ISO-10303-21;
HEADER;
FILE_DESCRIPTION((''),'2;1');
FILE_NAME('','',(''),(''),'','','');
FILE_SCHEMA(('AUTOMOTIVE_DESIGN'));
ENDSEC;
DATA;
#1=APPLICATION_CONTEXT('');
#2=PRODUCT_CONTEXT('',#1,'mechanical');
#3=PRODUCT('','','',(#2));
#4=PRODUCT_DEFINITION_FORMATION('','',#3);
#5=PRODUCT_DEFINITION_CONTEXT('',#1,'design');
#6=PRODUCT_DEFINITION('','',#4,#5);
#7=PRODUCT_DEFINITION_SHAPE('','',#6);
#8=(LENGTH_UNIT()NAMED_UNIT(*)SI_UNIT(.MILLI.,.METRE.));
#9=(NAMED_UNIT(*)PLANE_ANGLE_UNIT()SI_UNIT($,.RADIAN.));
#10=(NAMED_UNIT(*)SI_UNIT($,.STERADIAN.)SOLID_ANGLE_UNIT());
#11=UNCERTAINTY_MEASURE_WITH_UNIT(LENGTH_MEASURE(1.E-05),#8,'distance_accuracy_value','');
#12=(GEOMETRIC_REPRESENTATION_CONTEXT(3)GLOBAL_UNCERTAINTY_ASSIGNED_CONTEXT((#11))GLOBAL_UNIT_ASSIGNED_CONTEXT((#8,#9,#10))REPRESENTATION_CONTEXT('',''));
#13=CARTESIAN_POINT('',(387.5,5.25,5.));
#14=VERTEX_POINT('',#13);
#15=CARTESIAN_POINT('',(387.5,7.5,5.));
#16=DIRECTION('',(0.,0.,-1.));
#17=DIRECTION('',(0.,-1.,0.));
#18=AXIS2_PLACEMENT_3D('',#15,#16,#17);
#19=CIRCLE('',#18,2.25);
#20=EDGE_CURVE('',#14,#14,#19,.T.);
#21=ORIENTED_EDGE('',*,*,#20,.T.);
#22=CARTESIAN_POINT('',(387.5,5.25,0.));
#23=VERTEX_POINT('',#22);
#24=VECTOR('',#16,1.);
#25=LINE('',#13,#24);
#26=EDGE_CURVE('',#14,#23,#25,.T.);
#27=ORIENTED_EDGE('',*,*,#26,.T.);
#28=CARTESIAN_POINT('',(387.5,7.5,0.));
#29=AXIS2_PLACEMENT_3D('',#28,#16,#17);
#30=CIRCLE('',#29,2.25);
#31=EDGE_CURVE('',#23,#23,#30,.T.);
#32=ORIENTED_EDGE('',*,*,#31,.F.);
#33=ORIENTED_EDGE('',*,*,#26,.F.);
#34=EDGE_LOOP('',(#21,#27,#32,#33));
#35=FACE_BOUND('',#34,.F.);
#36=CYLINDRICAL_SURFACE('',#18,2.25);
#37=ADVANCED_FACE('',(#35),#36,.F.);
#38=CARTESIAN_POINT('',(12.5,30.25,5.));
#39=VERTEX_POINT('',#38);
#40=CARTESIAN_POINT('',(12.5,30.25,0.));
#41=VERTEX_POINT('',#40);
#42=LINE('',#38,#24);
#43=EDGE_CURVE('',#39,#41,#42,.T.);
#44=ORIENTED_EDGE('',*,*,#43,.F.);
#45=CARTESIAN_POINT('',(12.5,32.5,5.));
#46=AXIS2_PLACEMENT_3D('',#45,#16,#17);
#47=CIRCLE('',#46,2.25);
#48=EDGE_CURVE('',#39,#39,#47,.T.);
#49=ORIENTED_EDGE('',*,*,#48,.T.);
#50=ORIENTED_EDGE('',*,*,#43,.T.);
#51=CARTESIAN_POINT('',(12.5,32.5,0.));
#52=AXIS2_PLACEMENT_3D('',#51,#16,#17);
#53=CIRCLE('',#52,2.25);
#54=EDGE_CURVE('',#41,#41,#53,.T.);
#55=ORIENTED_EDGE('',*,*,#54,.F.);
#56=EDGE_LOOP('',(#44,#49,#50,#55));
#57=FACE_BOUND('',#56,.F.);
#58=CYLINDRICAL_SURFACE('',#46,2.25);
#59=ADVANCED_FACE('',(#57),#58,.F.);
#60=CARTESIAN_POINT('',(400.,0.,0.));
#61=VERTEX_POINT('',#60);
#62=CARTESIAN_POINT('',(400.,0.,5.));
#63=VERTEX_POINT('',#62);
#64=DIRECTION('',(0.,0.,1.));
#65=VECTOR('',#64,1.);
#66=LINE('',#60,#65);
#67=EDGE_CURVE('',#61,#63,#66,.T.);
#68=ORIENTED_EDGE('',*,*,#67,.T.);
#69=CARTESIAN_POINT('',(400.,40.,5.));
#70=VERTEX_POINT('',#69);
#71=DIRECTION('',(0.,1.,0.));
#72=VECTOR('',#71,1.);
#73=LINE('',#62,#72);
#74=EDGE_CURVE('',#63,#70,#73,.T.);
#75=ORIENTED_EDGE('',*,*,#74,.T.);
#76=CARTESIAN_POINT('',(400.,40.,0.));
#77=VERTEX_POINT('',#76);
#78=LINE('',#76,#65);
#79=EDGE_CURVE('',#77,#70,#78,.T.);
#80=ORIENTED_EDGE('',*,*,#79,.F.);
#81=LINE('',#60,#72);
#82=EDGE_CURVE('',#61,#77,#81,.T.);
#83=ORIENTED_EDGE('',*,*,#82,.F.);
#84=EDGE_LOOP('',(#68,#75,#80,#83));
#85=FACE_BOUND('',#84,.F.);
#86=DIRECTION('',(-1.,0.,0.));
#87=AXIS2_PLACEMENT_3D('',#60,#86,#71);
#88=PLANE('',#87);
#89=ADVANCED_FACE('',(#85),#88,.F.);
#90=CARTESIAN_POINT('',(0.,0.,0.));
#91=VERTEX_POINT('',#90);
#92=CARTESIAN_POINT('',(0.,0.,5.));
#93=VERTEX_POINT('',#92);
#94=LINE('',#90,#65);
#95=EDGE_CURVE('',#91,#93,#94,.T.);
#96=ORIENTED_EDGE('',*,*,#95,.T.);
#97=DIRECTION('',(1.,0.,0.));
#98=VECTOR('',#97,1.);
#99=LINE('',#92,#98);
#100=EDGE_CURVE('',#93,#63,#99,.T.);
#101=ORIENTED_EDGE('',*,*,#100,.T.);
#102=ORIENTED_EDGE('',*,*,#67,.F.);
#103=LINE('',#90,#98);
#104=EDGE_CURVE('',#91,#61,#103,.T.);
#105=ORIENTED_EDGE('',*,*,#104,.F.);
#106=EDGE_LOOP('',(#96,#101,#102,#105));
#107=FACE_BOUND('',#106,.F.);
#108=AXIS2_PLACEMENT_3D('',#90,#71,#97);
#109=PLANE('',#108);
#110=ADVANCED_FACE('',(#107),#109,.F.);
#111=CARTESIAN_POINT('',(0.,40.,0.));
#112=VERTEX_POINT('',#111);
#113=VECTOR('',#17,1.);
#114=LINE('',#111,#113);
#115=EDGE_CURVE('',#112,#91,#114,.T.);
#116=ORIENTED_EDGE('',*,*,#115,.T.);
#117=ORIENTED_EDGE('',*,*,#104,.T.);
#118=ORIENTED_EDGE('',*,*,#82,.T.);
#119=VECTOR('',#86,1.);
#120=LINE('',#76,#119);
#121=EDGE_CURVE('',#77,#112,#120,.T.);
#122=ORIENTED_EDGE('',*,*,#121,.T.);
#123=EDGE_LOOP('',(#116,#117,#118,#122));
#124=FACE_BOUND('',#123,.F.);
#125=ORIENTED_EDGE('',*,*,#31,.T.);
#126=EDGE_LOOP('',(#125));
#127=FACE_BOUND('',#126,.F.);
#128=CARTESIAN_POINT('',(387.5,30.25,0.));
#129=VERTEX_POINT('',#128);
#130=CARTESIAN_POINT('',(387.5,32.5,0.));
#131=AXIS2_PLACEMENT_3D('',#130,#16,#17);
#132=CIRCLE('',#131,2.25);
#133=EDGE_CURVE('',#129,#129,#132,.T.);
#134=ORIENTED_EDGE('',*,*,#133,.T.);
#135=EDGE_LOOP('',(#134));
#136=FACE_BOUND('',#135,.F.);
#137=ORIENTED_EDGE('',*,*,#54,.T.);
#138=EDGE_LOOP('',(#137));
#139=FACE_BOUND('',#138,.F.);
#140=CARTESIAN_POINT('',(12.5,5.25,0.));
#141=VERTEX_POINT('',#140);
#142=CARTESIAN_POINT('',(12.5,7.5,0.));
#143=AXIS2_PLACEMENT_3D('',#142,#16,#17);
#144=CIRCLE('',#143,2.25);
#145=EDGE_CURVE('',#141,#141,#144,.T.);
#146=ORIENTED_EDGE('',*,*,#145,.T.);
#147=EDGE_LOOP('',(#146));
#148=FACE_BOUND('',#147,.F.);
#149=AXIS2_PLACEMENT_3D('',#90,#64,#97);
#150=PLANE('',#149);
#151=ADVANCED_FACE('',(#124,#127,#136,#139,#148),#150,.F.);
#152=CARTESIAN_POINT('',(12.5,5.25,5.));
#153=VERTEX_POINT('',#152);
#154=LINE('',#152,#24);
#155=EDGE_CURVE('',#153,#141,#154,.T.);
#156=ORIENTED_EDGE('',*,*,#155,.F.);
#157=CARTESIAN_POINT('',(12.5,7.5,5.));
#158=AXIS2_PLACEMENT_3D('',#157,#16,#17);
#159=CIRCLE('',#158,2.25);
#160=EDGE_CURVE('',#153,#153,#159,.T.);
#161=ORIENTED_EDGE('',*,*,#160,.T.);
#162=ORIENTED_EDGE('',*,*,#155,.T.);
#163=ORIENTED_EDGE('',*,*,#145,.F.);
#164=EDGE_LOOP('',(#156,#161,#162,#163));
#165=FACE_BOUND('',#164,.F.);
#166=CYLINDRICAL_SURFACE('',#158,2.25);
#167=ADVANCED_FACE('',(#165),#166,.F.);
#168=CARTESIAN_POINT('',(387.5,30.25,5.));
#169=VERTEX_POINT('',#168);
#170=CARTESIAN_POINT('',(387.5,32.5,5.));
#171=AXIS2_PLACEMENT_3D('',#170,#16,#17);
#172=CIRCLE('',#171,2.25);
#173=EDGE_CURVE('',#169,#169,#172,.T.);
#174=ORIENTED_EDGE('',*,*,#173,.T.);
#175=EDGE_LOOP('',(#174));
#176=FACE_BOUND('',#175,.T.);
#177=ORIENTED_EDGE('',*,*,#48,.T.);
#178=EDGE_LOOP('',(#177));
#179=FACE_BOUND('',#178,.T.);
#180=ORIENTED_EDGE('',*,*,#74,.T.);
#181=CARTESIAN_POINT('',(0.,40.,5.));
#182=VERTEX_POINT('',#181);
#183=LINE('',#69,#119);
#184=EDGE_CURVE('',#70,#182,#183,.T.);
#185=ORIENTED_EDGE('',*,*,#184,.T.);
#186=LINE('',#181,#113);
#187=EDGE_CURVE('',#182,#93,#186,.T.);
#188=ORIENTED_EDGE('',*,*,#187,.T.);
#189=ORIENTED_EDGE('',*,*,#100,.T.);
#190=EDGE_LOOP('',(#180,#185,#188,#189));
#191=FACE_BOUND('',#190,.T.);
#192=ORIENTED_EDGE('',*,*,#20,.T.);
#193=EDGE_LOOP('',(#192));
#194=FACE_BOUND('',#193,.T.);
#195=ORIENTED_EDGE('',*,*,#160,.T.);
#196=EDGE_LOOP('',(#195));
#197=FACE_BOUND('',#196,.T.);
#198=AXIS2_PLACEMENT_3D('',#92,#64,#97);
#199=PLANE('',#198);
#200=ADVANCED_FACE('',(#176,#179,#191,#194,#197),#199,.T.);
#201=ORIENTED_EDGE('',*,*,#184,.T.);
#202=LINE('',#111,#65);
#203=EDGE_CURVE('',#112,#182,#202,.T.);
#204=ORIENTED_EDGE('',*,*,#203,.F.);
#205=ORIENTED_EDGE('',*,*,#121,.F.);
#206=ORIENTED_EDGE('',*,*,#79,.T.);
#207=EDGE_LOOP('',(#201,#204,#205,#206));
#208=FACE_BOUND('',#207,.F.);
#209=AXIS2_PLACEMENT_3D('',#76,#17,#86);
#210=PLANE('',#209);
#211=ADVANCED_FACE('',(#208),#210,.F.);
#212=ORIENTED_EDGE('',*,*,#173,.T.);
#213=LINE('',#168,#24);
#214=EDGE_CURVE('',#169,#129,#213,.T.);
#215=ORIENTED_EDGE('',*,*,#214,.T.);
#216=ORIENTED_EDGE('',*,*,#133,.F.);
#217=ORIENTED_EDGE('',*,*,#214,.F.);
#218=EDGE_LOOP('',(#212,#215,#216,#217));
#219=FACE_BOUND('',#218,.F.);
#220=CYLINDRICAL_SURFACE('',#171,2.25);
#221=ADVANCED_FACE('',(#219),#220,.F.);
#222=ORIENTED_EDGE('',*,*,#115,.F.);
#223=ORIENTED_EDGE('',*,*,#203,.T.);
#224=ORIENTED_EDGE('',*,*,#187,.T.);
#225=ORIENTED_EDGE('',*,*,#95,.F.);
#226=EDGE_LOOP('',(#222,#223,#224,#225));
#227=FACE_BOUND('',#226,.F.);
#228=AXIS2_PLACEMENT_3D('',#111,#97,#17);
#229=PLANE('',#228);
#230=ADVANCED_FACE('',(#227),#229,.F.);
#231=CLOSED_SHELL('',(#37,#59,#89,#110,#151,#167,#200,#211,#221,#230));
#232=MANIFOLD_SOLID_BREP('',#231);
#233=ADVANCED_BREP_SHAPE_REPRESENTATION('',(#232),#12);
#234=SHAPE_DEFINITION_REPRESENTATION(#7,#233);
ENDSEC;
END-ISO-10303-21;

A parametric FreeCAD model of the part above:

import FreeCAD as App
import Part
import Sketcher

V = App.Vector
Q = App.Units.Quantity

doc = App.newDocument("Part")
params = doc.addObject("Spreadsheet::Sheet", "Params")
for row, (alias, value) in enumerate([
    ("sketch1_width", "400 mm"),
    ("sketch1_height", "40 mm"),
    ("pad1_length", "5 mm"),
    ("sketch2_diameter", "4.5 mm"),
    ("hole_diameter", "4.5 mm"),
], start=1):
    params.set(f"A{row}", alias)
    params.set(f"B{row}", "=" + value)
    params.setAlias(f"B{row}", alias)

body = doc.addObject("PartDesign::Body", "Body")

# Sketch on XY plane
sketch1 = body.newObject("Sketcher::SketchObject", "Sketch")
sketch1.AttachmentSupport = (doc.getObject("XY_Plane"), [""])
sketch1.MapMode = "FlatFace"
sketch1.addGeometry(Part.LineSegment(V(0, 40, 0), V(0, 0, 0)), False)
sketch1.addGeometry(Part.LineSegment(V(0, 0, 0), V(400, 0, 0)), False)
sketch1.addGeometry(Part.LineSegment(V(400, 0, 0), V(400, 40, 0)), False)
sketch1.addGeometry(Part.LineSegment(V(400, 40, 0), V(0, 40, 0)), False)
sketch1.addConstraint(Sketcher.Constraint("Coincident", 0, 2, 1, 1))
sketch1.addConstraint(Sketcher.Constraint("Coincident", 1, 2, 2, 1))
sketch1.addConstraint(Sketcher.Constraint("Coincident", 2, 2, 3, 1))
sketch1.addConstraint(Sketcher.Constraint("Coincident", 3, 2, 0, 1))
sketch1.addConstraint(Sketcher.Constraint("Vertical", 0))
sketch1.addConstraint(Sketcher.Constraint("Horizontal", 1))
sketch1.addConstraint(Sketcher.Constraint("Vertical", 2))
sketch1.addConstraint(Sketcher.Constraint("Horizontal", 3))
sketch1.addConstraint(Sketcher.Constraint("Coincident", 0, 2, -1, 1))
sketch1.addConstraint(Sketcher.Constraint("DistanceX", 1, 1, 1, 2, Q("400 mm")))
sketch1.addConstraint(Sketcher.Constraint("DistanceY", 0, 2, 0, 1, Q("40 mm")))
sketch1.setExpression("Constraints[9]", "Params.sketch1_width")
sketch1.setExpression("Constraints[10]", "Params.sketch1_height")
pad1 = body.newObject("PartDesign::Pad", "Pad")
pad1.Profile = sketch1
pad1.setExpression("Length", "Params.pad1_length")

# Sketch on XY plane
sketch2 = body.newObject("Sketcher::SketchObject", "Sketch001")
sketch2.AttachmentSupport = (doc.getObject("XY_Plane"), [""])
sketch2.MapMode = "FlatFace"
sketch2.AttachmentOffset = App.Placement(V(0, 0, 5), App.Rotation())
sketch2.addGeometry(Part.Circle(V(12.5, 32.5, 0), V(0, 0, 1), 2.2), False)
sketch2.addGeometry(Part.Circle(V(12.5, 7.5, 0), V(0, 0, 1), 2.2), False)
sketch2.addGeometry(Part.Circle(V(387.5, 32.5, 0), V(0, 0, 1), 2.2), False)
sketch2.addGeometry(Part.Circle(V(387.5, 7.5, 0), V(0, 0, 1), 2.2), False)
sketch2.addConstraint(Sketcher.Constraint("Equal", 0, 1))
sketch2.addConstraint(Sketcher.Constraint("Equal", 1, 2))
sketch2.addConstraint(Sketcher.Constraint("Equal", 2, 3))
sketch2.addConstraint(Sketcher.Constraint("Horizontal", 0, 3, 2, 3))
sketch2.addConstraint(Sketcher.Constraint("Horizontal", 1, 3, 3, 3))
sketch2.addConstraint(Sketcher.Constraint("Vertical", 0, 3, 1, 3))
sketch2.addConstraint(Sketcher.Constraint("Vertical", 2, 3, 3, 3))
sketch2.addConstraint(Sketcher.Constraint("Diameter", 0, Q("4.5 mm")))
sketch2.addConstraint(Sketcher.Constraint("DistanceY", 1, 3, 0, 3, Q("25 mm")))
sketch2.addConstraint(Sketcher.Constraint("DistanceX", 0, 3, 2, 3, Q("375 mm")))
sketch2.addConstraint(Sketcher.Constraint("DistanceX", -1, 1, 0, 3, Q("12.5 mm")))
sketch2.addConstraint(Sketcher.Constraint("DistanceY", -1, 1, 0, 3, Q("32.5 mm")))
sketch2.setExpression("Constraints[7]", "Params.sketch2_diameter")
doc.recompute()
hole = body.newObject("PartDesign::Hole", "Hole")
hole.Profile = sketch2
hole.ThreadType = "None"
hole.setExpression("Diameter", "Params.hole_diameter")
hole.DepthType = "ThroughAll"

doc.recompute()
